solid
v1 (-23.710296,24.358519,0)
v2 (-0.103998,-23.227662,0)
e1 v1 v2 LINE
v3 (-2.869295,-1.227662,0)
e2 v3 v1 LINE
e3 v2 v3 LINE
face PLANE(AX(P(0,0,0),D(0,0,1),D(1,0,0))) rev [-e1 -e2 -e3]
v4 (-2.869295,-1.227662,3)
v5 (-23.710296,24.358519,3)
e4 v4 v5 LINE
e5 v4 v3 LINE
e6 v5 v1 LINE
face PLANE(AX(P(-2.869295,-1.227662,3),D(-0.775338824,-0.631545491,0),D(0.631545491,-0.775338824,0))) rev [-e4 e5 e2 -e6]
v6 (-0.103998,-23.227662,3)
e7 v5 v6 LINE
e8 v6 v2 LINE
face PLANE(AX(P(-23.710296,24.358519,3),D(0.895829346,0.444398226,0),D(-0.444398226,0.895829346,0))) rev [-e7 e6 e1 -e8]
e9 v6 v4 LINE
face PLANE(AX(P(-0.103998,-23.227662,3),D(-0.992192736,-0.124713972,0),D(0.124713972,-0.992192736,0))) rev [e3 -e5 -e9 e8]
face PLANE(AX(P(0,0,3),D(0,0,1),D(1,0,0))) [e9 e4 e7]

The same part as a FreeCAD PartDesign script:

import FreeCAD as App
import Part
import Sketcher

V = App.Vector
Q = App.Units.Quantity


def add_polygon(sketch, points):
    """Adds a closed chain of lines whose ends are joined by coincident constraints."""
    first, n = sketch.GeometryCount, len(points)
    for a, b in zip(points, points[1:] + points[:1]):
        sketch.addGeometry(Part.LineSegment(App.Vector(*a, 0), App.Vector(*b, 0)), False)
    for i in range(n):
        sketch.addConstraint(Sketcher.Constraint("Coincident", first + i, 2, first + (i + 1) % n, 1))

doc = App.newDocument("Part")
body = doc.addObject("PartDesign::Body", "Body")

sketch1 = body.newObject("Sketcher::SketchObject", "Sketch")
sketch1.AttachmentSupport = (doc.getObject("XY_Plane"), [""])
sketch1.MapMode = "FlatFace"
add_polygon(sketch1, [(0, -23), (-3, -1), (-24, 24)])
sketch1.addConstraint([
    Sketcher.Constraint("Distance", 1, Q("33 mm")),
    Sketcher.Constraint("DistanceY", 2, 2, 0, 2, Q("22 mm")),
    Sketcher.Constraint("DistanceX", 1, 2, 0, 2, Q("20.841001 mm")),
    Sketcher.Constraint("Distance", 0, Q("22.173111 mm")),
    Sketcher.Constraint("DistanceY", 0, 2, -1, 1, Q("1.227662 mm")),
    Sketcher.Constraint("DistanceX", 0, 2, -1, 1, Q("2.869295 mm")),
])
pad1 = body.newObject("PartDesign::Pad", "Pad")
pad1.Profile = sketch1
pad1.Length = 3

doc.recompute()
